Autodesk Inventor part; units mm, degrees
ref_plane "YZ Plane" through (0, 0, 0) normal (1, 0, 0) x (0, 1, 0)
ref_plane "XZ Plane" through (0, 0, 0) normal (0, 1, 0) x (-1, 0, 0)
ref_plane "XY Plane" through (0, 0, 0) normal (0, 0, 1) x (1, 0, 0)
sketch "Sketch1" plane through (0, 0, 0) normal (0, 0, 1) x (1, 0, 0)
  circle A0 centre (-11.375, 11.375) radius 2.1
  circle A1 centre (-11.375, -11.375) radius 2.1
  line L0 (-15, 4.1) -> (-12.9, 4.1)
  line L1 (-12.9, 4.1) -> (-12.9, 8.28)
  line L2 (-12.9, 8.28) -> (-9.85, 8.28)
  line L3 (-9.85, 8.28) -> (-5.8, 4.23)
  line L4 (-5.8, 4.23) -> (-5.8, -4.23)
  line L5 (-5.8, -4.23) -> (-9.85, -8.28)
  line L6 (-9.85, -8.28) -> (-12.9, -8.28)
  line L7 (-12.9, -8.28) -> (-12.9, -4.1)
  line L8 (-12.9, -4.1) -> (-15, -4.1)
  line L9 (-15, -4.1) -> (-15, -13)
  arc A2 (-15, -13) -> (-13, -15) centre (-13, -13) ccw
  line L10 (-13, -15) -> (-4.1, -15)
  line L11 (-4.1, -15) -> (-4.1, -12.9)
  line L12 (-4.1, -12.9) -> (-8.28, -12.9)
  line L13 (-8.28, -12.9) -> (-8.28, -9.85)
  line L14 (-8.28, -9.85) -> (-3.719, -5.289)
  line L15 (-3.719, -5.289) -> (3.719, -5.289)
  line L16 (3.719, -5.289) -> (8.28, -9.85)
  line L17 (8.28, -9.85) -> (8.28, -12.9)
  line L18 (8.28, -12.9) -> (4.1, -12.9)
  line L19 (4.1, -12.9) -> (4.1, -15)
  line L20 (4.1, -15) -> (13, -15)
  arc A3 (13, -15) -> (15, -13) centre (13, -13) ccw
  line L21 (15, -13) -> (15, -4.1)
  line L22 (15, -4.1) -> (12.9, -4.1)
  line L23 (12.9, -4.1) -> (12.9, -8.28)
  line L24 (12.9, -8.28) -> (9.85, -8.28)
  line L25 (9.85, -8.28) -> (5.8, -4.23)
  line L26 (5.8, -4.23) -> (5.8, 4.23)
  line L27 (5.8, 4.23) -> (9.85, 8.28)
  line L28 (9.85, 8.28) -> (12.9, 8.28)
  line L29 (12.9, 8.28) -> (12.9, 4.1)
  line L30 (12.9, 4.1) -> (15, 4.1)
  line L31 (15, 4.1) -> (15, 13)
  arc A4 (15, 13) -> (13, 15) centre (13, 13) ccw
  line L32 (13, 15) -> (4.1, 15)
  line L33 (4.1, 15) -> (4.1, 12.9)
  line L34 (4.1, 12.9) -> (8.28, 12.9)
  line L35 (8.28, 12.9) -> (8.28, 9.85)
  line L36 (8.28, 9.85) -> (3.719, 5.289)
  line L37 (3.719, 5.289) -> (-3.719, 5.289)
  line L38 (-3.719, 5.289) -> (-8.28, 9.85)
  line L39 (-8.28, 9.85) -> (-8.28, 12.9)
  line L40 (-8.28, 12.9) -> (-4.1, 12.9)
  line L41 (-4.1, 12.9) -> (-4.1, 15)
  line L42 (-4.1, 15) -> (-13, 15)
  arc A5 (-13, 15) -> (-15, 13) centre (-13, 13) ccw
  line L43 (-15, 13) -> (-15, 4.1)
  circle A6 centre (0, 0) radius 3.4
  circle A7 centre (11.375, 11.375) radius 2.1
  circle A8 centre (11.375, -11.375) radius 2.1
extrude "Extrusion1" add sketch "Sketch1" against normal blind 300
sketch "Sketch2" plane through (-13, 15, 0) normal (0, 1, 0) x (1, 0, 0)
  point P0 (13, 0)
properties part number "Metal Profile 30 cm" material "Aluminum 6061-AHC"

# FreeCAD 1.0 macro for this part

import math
import FreeCAD as App
import Part
import Sketcher
from FreeCAD import Vector

doc = App.newDocument("Part")
body = doc.addObject("PartDesign::Body", "Body")

# Sketch on XY plane
sketch1 = doc.addObject("Sketcher::SketchObject", "Sketch")
body.addObject(sketch1)
sketch1.AttachmentSupport = (doc.XY_Plane, [""])
sketch1.MapMode = "FlatFace"
sketch1.addGeometry(Part.LineSegment(Vector(-15, 13, 0), Vector(-15, 4.1, 0)), False)
sketch1.addGeometry(Part.LineSegment(Vector(-15, 4.1, 0), Vector(-12.9, 4.1, 0)), False)
sketch1.addGeometry(Part.LineSegment(Vector(-12.9, 4.1, 0), Vector(-12.9, 8.3, 0)), False)
sketch1.addGeometry(Part.LineSegment(Vector(-12.9, 8.3, 0), Vector(-9.8, 8.3, 0)), False)
sketch1.addGeometry(Part.LineSegment(Vector(-9.8, 8.3, 0), Vector(-5.8, 4.2, 0)), False)
sketch1.addGeometry(Part.LineSegment(Vector(-5.8, 4.2, 0), Vector(-5.8, -4.2, 0)), False)
sketch1.addGeometry(Part.LineSegment(Vector(-5.8, -4.2, 0), Vector(-9.8, -8.3, 0)), False)
sketch1.addGeometry(Part.LineSegment(Vector(-9.8, -8.3, 0), Vector(-12.9, -8.3, 0)), False)
sketch1.addGeometry(Part.LineSegment(Vector(-12.9, -8.3, 0), Vector(-12.9, -4.1, 0)), False)
sketch1.addGeometry(Part.LineSegment(Vector(-12.9, -4.1, 0), Vector(-15, -4.1, 0)), False)
sketch1.addGeometry(Part.LineSegment(Vector(-15, -4.1, 0), Vector(-15, -13, 0)), False)
sketch1.addGeometry(Part.ArcOfCircle(Part.Circle(Vector(-13, -13, 0), Vector(0, 0, 1), 2), math.radians(180), math.radians(270)), False)
sketch1.addGeometry(Part.LineSegment(Vector(-13, -15, 0), Vector(-4.1, -15, 0)), False)
sketch1.addGeometry(Part.LineSegment(Vector(-4.1, -15, 0), Vector(-4.1, -12.9, 0)), False)
sketch1.addGeometry(Part.LineSegment(Vector(-4.1, -12.9, 0), Vector(-8.3, -12.9, 0)), False)
sketch1.addGeometry(Part.LineSegment(Vector(-8.3, -12.9, 0), Vector(-8.3, -9.8, 0)), False)
sketch1.addGeometry(Part.LineSegment(Vector(-8.3, -9.8, 0), Vector(-3.7, -5.3, 0)), False)
sketch1.addGeometry(Part.LineSegment(Vector(-3.7, -5.3, 0), Vector(3.7, -5.3, 0)), False)
sketch1.addGeometry(Part.LineSegment(Vector(3.7, -5.3, 0), Vector(8.3, -9.8, 0)), False)
sketch1.addGeometry(Part.LineSegment(Vector(8.3, -9.8, 0), Vector(8.3, -12.9, 0)), False)
sketch1.addGeometry(Part.LineSegment(Vector(8.3, -12.9, 0), Vector(4.1, -12.9, 0)), False)
sketch1.addGeometry(Part.LineSegment(Vector(4.1, -12.9, 0), Vector(4.1, -15, 0)), False)
sketch1.addGeometry(Part.LineSegment(Vector(4.1, -15, 0), Vector(13, -15, 0)), False)
sketch1.addGeometry(Part.ArcOfCircle(Part.Circle(Vector(13, -13, 0), Vector(0, 0, 1), 2), math.radians(-90), math.radians(0)), False)
sketch1.addGeometry(Part.LineSegment(Vector(15, -13, 0), Vector(15, -4.1, 0)), False)
sketch1.addGeometry(Part.LineSegment(Vector(15, -4.1, 0), Vector(12.9, -4.1, 0)), False)
sketch1.addGeometry(Part.LineSegment(Vector(12.9, -4.1, 0), Vector(12.9, -8.3, 0)), False)
sketch1.addGeometry(Part.LineSegment(Vector(12.9, -8.3, 0), Vector(9.8, -8.3, 0)), False)
sketch1.addGeometry(Part.LineSegment(Vector(9.8, -8.3, 0), Vector(5.8, -4.2, 0)), False)
sketch1.addGeometry(Part.LineSegment(Vector(5.8, -4.2, 0), Vector(5.8, 4.2, 0)), False)
sketch1.addGeometry(Part.LineSegment(Vector(5.8, 4.2, 0), Vector(9.8, 8.3, 0)), False)
sketch1.addGeometry(Part.LineSegment(Vector(9.8, 8.3, 0), Vector(12.9, 8.3, 0)), False)
sketch1.addGeometry(Part.LineSegment(Vector(12.9, 8.3, 0), Vector(12.9, 4.1, 0)), False)
sketch1.addGeometry(Part.LineSegment(Vector(12.9, 4.1, 0), Vector(15, 4.1, 0)), False)
sketch1.addGeometry(Part.LineSegment(Vector(15, 4.1, 0), Vector(15, 13, 0)), False)
sketch1.addGeometry(Part.ArcOfCircle(Part.Circle(Vector(13, 13, 0), Vector(0, 0, 1), 2), math.radians(0), math.radians(90)), False)
sketch1.addGeometry(Part.LineSegment(Vector(13, 15, 0), Vector(4.1, 15, 0)), False)
sketch1.addGeometry(Part.LineSegment(Vector(4.1, 15, 0), Vector(4.1, 12.9, 0)), False)
sketch1.addGeometry(Part.LineSegment(Vector(4.1, 12.9, 0), Vector(8.3, 12.9, 0)), False)
sketch1.addGeometry(Part.LineSegment(Vector(8.3, 12.9, 0), Vector(8.3, 9.8, 0)), False)
sketch1.addGeometry(Part.LineSegment(Vector(8.3, 9.8, 0), Vector(3.7, 5.3, 0)), False)
sketch1.addGeometry(Part.LineSegment(Vector(3.7, 5.3, 0), Vector(-3.7, 5.3, 0)), False)
sketch1.addGeometry(Part.LineSegment(Vector(-3.7, 5.3, 0), Vector(-8.3, 9.8, 0)), False)
sketch1.addGeometry(Part.LineSegment(Vector(-8.3, 9.8, 0), Vector(-8.3, 12.9, 0)), False)
sketch1.addGeometry(Part.LineSegment(Vector(-8.3, 12.9, 0), Vector(-4.1, 12.9, 0)), False)
sketch1.addGeometry(Part.LineSegment(Vector(-4.1, 12.9, 0), Vector(-4.1, 15, 0)), False)
sketch1.addGeometry(Part.LineSegment(Vector(-4.1, 15, 0), Vector(-13, 15, 0)), False)
sketch1.addGeometry(Part.ArcOfCircle(Part.Circle(Vector(-13, 13, 0), Vector(0, 0, 1), 2), math.radians(90), math.radians(180)), False)
sketch1.addGeometry(Part.Circle(Vector(-11.4, -11.4, 0), Vector(0, 0, 1), 2.1), False)
sketch1.addGeometry(Part.Circle(Vector(11.4, -11.4, 0), Vector(0, 0, 1), 2.1), False)
sketch1.addGeometry(Part.Circle(Vector(-11.4, 11.4, 0), Vector(0, 0, 1), 2.1), False)
sketch1.addGeometry(Part.Circle(Vector(0, 0, 0), Vector(0, 0, 1), 3.4), False)
sketch1.addGeometry(Part.Circle(Vector(11.4, 11.4, 0), Vector(0, 0, 1), 2.1), False)
sketch1.addConstraint(Sketcher.Constraint("Coincident", 0, 2, 1, 1))
sketch1.addConstraint(Sketcher.Constraint("Coincident", 1, 2, 2, 1))
sketch1.addConstraint(Sketcher.Constraint("Coincident", 2, 2, 3, 1))
sketch1.addConstraint(Sketcher.Constraint("Coincident", 3, 2, 4, 1))
sketch1.addConstraint(Sketcher.Constraint("Coincident", 4, 2, 5, 1))
sketch1.addConstraint(Sketcher.Constraint("Coincident", 5, 2, 6, 1))
sketch1.addConstraint(Sketcher.Constraint("Coincident", 6, 2, 7, 1))
sketch1.addConstraint(Sketcher.Constraint("Coincident", 7, 2, 8, 1))
sketch1.addConstraint(Sketcher.Constraint("Coincident", 8, 2, 9, 1))
sketch1.addConstraint(Sketcher.Constraint("Coincident", 9, 2, 10, 1))
sketch1.addConstraint(Sketcher.Constraint("Tangent", 10, 2, 11, 1))
sketch1.addConstraint(Sketcher.Constraint("Tangent", 11, 2, 12, 1))
sketch1.addConstraint(Sketcher.Constraint("Coincident", 12, 2, 13, 1))
sketch1.addConstraint(Sketcher.Constraint("Coincident", 13, 2, 14, 1))
sketch1.addConstraint(Sketcher.Constraint("Coincident", 14, 2, 15, 1))
sketch1.addConstraint(Sketcher.Constraint("Coincident", 15, 2, 16, 1))
sketch1.addConstraint(Sketcher.Constraint("Coincident", 16, 2, 17, 1))
sketch1.addConstraint(Sketcher.Constraint("Coincident", 17, 2, 18, 1))
sketch1.addConstraint(Sketcher.Constraint("Coincident", 18, 2, 19, 1))
sketch1.addConstraint(Sketcher.Constraint("Coincident", 19, 2, 20, 1))
sketch1.addConstraint(Sketcher.Constraint("Coincident", 20, 2, 21, 1))
sketch1.addConstraint(Sketcher.Constraint("Coincident", 21, 2, 22, 1))
sketch1.addConstraint(Sketcher.Constraint("Tangent", 22, 2, 23, 1))
sketch1.addConstraint(Sketcher.Constraint("Tangent", 23, 2, 24, 1))
sketch1.addConstraint(Sketcher.Constraint("Coincident", 24, 2, 25, 1))
sketch1.addConstraint(Sketcher.Constraint("Coincident", 25, 2, 26, 1))
sketch1.addConstraint(Sketcher.Constraint("Coincident", 26, 2, 27, 1))
sketch1.addConstraint(Sketcher.Constraint("Coincident", 27, 2, 28, 1))
sketch1.addConstraint(Sketcher.Constraint("Coincident", 28, 2, 29, 1))
sketch1.addConstraint(Sketcher.Constraint("Coincident", 29, 2, 30, 1))
sketch1.addConstraint(Sketcher.Constraint("Coincident", 30, 2, 31, 1))
sketch1.addConstraint(Sketcher.Constraint("Coincident", 31, 2, 32, 1))
sketch1.addConstraint(Sketcher.Constraint("Coincident", 32, 2, 33, 1))
sketch1.addConstraint(Sketcher.Constraint("Coincident", 33, 2, 34, 1))
sketch1.addConstraint(Sketcher.Constraint("Tangent", 34, 2, 35, 1))
sketch1.addConstraint(Sketcher.Constraint("Tangent", 35, 2, 36, 1))
sketch1.addConstraint(Sketcher.Constraint("Coincident", 36, 2, 37, 1))
sketch1.addConstraint(Sketcher.Constraint("Coincident", 37, 2, 38, 1))
sketch1.addConstraint(Sketcher.Constraint("Coincident", 38, 2, 39, 1))
sketch1.addConstraint(Sketcher.Constraint("Coincident", 39, 2, 40, 1))
sketch1.addConstraint(Sketcher.Constraint("Coincident", 40, 2, 41, 1))
sketch1.addConstraint(Sketcher.Constraint("Coincident", 41, 2, 42, 1))
sketch1.addConstraint(Sketcher.Constraint("Coincident", 42, 2, 43, 1))
sketch1.addConstraint(Sketcher.Constraint("Coincident", 43, 2, 44, 1))
sketch1.addConstraint(Sketcher.Constraint("Coincident", 44, 2, 45, 1))
sketch1.addConstraint(Sketcher.Constraint("Coincident", 45, 2, 46, 1))
sketch1.addConstraint(Sketcher.Constraint("Tangent", 46, 2, 47, 1))
sketch1.addConstraint(Sketcher.Constraint("Tangent", 47, 2, 0, 1))
sketch1.addConstraint(Sketcher.Constraint("Vertical", 0))
sketch1.addConstraint(Sketcher.Constraint("Horizontal", 1))
sketch1.addConstraint(Sketcher.Constraint("Vertical", 2))
sketch1.addConstraint(Sketcher.Constraint("Horizontal", 3))
sketch1.addConstraint(Sketcher.Constraint("Vertical", 5))
sketch1.addConstraint(Sketcher.Constraint("Horizontal", 7))
sketch1.addConstraint(Sketcher.Constraint("Vertical", 8))
sketch1.addConstraint(Sketcher.Constraint("Horizontal", 9))
sketch1.addConstraint(Sketcher.Constraint("Vertical", 10))
sketch1.addConstraint(Sketcher.Constraint("Horizontal", 12))
sketch1.addConstraint(Sketcher.Constraint("Vertical", 13))
sketch1.addConstraint(Sketcher.Constraint("Horizontal", 14))
sketch1.addConstraint(Sketcher.Constraint("Vertical", 15))
sketch1.addConstraint(Sketcher.Constraint("Horizontal", 17))
sketch1.addConstraint(Sketcher.Constraint("Vertical", 19))
sketch1.addConstraint(Sketcher.Constraint("Horizontal", 20))
sketch1.addConstraint(Sketcher.Constraint("Vertical", 21))
sketch1.addConstraint(Sketcher.Constraint("Horizontal", 22))
sketch1.addConstraint(Sketcher.Constraint("Vertical", 24))
sketch1.addConstraint(Sketcher.Constraint("Horizontal", 25))
sketch1.addConstraint(Sketcher.Constraint("Vertical", 26))
sketch1.addConstraint(Sketcher.Constraint("Horizontal", 27))
sketch1.addConstraint(Sketcher.Constraint("Vertical", 29))
sketch1.addConstraint(Sketcher.Constraint("Horizontal", 31))
sketch1.addConstraint(Sketcher.Constraint("Vertical", 32))
sketch1.addConstraint(Sketcher.Constraint("Horizontal", 33))
sketch1.addConstraint(Sketcher.Constraint("Vertical", 34))
sketch1.addConstraint(Sketcher.Constraint("Horizontal", 36))
sketch1.addConstraint(Sketcher.Constraint("Vertical", 37))
sketch1.addConstraint(Sketcher.Constraint("Horizontal", 38))
sketch1.addConstraint(Sketcher.Constraint("Vertical", 39))
sketch1.addConstraint(Sketcher.Constraint("Horizontal", 41))
sketch1.addConstraint(Sketcher.Constraint("Vertical", 43))
sketch1.addConstraint(Sketcher.Constraint("Horizontal", 44))
sketch1.addConstraint(Sketcher.Constraint("Vertical", 45))
sketch1.addConstraint(Sketcher.Constraint("Horizontal", 46))
sketch1.addConstraint(Sketcher.Constraint("Coincident", 51, 3, -1, 1))
sketch1.addConstraint(Sketcher.Constraint("Equal", 11, 23))
sketch1.addConstraint(Sketcher.Constraint("Equal", 23, 35))
sketch1.addConstraint(Sketcher.Constraint("Equal", 35, 47))
sketch1.addConstraint(Sketcher.Constraint("Equal", 48, 49))
sketch1.addConstraint(Sketcher.Constraint("Equal", 49, 50))
sketch1.addConstraint(Sketcher.Constraint("Equal", 50, 52))
sketch1.addConstraint(Sketcher.Constraint("Symmetric", 11, 3, 35, 3, -1, 1))
sketch1.addConstraint(Sketcher.Constraint("Symmetric", 23, 3, 47, 3, -1, 1))
sketch1.addConstraint(Sketcher.Constraint("Symmetric", 49, 3, 50, 3, -1, 1))
sketch1.addConstraint(Sketcher.Constraint("Symmetric", 48, 3, 52, 3, -1, 1))
sketch1.addConstraint(Sketcher.Constraint("Symmetric", 1, 2, 25, 2, -1, 1))
sketch1.addConstraint(Sketcher.Constraint("Symmetric", 3, 2, 27, 2, -1, 1))
sketch1.addConstraint(Sketcher.Constraint("Symmetric", 4, 2, 28, 2, -1, 1))
sketch1.addConstraint(Sketcher.Constraint("Symmetric", 6, 2, 30, 2, -1, 1))
sketch1.addConstraint(Sketcher.Constraint("Symmetric", 8, 2, 32, 2, -1, 1))
sketch1.addConstraint(Sketcher.Constraint("Symmetric", 13, 2, 37, 2, -1, 1))
sketch1.addConstraint(Sketcher.Constraint("Symmetric", 15, 2, 39, 2, -1, 1))
sketch1.addConstraint(Sketcher.Constraint("Symmetric", 16, 2, 40, 2, -1, 1))
sketch1.addConstraint(Sketcher.Constraint("Symmetric", 18, 2, 42, 2, -1, 1))
sketch1.addConstraint(Sketcher.Constraint("Symmetric", 20, 2, 44, 2, -1, 1))
sketch1.addConstraint(Sketcher.Constraint("Symmetric", 11, 3, 23, 3, -2))
sketch1.addConstraint(Sketcher.Constraint("Symmetric", 48, 3, 49, 3, -2))
sketch1.addConstraint(Sketcher.Constraint("Symmetric", 15, 2, 18, 2, -2))
sketch1.addConstraint(Sketcher.Constraint("Symmetric", 13, 2, 20, 2, -2))
sketch1.addConstraint(Sketcher.Constraint("Symmetric", 8, 2, 25, 2, -2))
sketch1.addConstraint(Sketcher.Constraint("Symmetric", 6, 2, 27, 2, -2))
sketch1.addConstraint(Sketcher.Constraint("Perpendicular", 4, 6))
sketch1.addConstraint(Sketcher.Constraint("Parallel", 6, 16))
sketch1.addConstraint(Sketcher.Constraint("Perpendicular", 16, 18))
sketch1.addConstraint(Sketcher.Constraint("Perpendicular", 28, 30))
sketch1.addConstraint(Sketcher.Constraint("Perpendicular", 40, 42))
sketch1.addConstraint(Sketcher.Constraint("Horizontal", 5, 2, 28, 2))
sketch1.addConstraint(Sketcher.Constraint("Equal", 46, 0))
sketch1.addConstraint(Sketcher.Constraint("Equal", 44, 2))
sketch1.addConstraint(Sketcher.Constraint("Equal", 33, 13))
sketch1.addConstraint(Sketcher.Constraint("Equal", 31, 15))
sketch1.addConstraint(Sketcher.Constraint("Radius", 11, 2.0))
sketch1.addConstraint(Sketcher.Constraint("Diameter", 48, 4.2))
sketch1.addConstraint(Sketcher.Constraint("Diameter", 51, 6.8))
sketch1.addConstraint(Sketcher.Constraint("DistanceX", 1, 1, 1, 2, 2.1))
sketch1.addConstraint(Sketcher.Constraint("DistanceX", 12, 1, 12, 2, 8.9))
sketch1.addConstraint(Sketcher.Constraint("DistanceX", 11, 3, -1, 1, 13.0))
sketch1.addConstraint(Sketcher.Constraint("DistanceY", 11, 3, -1, 1, 13.0))
sketch1.addConstraint(Sketcher.Constraint("DistanceX", 3, 1, 3, 2, 3.05))
sketch1.addConstraint(Sketcher.Constraint("DistanceX", 14, 2, 14, 1, 4.18))
sketch1.addConstraint(Sketcher.Constraint("DistanceY", 5, 2, 5, 1, 8.46))
sketch1.addConstraint(Sketcher.Constraint("DistanceX", 17, 1, 17, 2, 7.438))
sketch1.addConstraint(Sketcher.Constraint("DistanceX", 48, 3, 49, 3, 22.75))
sketch1.addConstraint(Sketcher.Constraint("DistanceY", 48, 3, 50, 3, 22.75))
pad1 = doc.addObject("PartDesign::Pad", "Pad")
body.addObject(pad1)
pad1.Profile = sketch1
pad1.Length = 300
pad1.Reversed = True

doc.recompute()
